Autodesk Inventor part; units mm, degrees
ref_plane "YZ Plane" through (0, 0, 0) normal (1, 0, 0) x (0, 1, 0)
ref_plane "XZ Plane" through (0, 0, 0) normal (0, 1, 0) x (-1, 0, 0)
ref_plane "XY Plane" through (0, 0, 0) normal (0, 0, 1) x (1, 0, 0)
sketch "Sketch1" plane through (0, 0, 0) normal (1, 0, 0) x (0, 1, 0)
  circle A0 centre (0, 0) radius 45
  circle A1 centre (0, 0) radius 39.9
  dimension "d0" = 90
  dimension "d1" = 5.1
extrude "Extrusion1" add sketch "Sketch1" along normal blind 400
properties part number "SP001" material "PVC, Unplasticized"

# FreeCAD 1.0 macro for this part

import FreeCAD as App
import Part
import Sketcher

doc = App.newDocument("Part")
params = doc.addObject("Spreadsheet::Sheet", "Params")
for row, (alias, value) in enumerate([
    ("sketch1_diameter", "90 mm"),
    ("sketch1_diameter2", "79.8 mm"),
    ("pad1_length", "400 mm"),
], start=1):
    params.set(f"A{row}", alias)
    params.set(f"B{row}", "=" + value)
    params.setAlias(f"B{row}", alias)

body = doc.addObject("PartDesign::Body", "Body")

# Sketch on YZ plane
sketch1 = body.newObject("Sketcher::SketchObject", "Sketch")
sketch1.AttachmentSupport = (doc.getObject("YZ_Plane"), [""])
sketch1.MapMode = "FlatFace"
sketch1.addGeometry([
    Part.Circle(App.Vector(0, 0, 0), App.Vector(0, 0, 1), 45),
    Part.Circle(App.Vector(0, 0, 0), App.Vector(0, 0, 1), 39.9),
], False)
sketch1.addConstraint([
    Sketcher.Constraint("Coincident", 0, 3, -1, 1),
    Sketcher.Constraint("Coincident", 1, 3, -1, 1),
    Sketcher.Constraint("Diameter", 0, 90.0),
    Sketcher.Constraint("Diameter", 1, 79.8),
])
sketch1.setExpression("Constraints[2]", "Params.sketch1_diameter")
sketch1.setExpression("Constraints[3]", "Params.sketch1_diameter2")
pad1 = body.newObject("PartDesign::Pad", "Pad")
pad1.Profile = sketch1
pad1.setExpression("Length", "Params.pad1_length")

doc.recompute()
